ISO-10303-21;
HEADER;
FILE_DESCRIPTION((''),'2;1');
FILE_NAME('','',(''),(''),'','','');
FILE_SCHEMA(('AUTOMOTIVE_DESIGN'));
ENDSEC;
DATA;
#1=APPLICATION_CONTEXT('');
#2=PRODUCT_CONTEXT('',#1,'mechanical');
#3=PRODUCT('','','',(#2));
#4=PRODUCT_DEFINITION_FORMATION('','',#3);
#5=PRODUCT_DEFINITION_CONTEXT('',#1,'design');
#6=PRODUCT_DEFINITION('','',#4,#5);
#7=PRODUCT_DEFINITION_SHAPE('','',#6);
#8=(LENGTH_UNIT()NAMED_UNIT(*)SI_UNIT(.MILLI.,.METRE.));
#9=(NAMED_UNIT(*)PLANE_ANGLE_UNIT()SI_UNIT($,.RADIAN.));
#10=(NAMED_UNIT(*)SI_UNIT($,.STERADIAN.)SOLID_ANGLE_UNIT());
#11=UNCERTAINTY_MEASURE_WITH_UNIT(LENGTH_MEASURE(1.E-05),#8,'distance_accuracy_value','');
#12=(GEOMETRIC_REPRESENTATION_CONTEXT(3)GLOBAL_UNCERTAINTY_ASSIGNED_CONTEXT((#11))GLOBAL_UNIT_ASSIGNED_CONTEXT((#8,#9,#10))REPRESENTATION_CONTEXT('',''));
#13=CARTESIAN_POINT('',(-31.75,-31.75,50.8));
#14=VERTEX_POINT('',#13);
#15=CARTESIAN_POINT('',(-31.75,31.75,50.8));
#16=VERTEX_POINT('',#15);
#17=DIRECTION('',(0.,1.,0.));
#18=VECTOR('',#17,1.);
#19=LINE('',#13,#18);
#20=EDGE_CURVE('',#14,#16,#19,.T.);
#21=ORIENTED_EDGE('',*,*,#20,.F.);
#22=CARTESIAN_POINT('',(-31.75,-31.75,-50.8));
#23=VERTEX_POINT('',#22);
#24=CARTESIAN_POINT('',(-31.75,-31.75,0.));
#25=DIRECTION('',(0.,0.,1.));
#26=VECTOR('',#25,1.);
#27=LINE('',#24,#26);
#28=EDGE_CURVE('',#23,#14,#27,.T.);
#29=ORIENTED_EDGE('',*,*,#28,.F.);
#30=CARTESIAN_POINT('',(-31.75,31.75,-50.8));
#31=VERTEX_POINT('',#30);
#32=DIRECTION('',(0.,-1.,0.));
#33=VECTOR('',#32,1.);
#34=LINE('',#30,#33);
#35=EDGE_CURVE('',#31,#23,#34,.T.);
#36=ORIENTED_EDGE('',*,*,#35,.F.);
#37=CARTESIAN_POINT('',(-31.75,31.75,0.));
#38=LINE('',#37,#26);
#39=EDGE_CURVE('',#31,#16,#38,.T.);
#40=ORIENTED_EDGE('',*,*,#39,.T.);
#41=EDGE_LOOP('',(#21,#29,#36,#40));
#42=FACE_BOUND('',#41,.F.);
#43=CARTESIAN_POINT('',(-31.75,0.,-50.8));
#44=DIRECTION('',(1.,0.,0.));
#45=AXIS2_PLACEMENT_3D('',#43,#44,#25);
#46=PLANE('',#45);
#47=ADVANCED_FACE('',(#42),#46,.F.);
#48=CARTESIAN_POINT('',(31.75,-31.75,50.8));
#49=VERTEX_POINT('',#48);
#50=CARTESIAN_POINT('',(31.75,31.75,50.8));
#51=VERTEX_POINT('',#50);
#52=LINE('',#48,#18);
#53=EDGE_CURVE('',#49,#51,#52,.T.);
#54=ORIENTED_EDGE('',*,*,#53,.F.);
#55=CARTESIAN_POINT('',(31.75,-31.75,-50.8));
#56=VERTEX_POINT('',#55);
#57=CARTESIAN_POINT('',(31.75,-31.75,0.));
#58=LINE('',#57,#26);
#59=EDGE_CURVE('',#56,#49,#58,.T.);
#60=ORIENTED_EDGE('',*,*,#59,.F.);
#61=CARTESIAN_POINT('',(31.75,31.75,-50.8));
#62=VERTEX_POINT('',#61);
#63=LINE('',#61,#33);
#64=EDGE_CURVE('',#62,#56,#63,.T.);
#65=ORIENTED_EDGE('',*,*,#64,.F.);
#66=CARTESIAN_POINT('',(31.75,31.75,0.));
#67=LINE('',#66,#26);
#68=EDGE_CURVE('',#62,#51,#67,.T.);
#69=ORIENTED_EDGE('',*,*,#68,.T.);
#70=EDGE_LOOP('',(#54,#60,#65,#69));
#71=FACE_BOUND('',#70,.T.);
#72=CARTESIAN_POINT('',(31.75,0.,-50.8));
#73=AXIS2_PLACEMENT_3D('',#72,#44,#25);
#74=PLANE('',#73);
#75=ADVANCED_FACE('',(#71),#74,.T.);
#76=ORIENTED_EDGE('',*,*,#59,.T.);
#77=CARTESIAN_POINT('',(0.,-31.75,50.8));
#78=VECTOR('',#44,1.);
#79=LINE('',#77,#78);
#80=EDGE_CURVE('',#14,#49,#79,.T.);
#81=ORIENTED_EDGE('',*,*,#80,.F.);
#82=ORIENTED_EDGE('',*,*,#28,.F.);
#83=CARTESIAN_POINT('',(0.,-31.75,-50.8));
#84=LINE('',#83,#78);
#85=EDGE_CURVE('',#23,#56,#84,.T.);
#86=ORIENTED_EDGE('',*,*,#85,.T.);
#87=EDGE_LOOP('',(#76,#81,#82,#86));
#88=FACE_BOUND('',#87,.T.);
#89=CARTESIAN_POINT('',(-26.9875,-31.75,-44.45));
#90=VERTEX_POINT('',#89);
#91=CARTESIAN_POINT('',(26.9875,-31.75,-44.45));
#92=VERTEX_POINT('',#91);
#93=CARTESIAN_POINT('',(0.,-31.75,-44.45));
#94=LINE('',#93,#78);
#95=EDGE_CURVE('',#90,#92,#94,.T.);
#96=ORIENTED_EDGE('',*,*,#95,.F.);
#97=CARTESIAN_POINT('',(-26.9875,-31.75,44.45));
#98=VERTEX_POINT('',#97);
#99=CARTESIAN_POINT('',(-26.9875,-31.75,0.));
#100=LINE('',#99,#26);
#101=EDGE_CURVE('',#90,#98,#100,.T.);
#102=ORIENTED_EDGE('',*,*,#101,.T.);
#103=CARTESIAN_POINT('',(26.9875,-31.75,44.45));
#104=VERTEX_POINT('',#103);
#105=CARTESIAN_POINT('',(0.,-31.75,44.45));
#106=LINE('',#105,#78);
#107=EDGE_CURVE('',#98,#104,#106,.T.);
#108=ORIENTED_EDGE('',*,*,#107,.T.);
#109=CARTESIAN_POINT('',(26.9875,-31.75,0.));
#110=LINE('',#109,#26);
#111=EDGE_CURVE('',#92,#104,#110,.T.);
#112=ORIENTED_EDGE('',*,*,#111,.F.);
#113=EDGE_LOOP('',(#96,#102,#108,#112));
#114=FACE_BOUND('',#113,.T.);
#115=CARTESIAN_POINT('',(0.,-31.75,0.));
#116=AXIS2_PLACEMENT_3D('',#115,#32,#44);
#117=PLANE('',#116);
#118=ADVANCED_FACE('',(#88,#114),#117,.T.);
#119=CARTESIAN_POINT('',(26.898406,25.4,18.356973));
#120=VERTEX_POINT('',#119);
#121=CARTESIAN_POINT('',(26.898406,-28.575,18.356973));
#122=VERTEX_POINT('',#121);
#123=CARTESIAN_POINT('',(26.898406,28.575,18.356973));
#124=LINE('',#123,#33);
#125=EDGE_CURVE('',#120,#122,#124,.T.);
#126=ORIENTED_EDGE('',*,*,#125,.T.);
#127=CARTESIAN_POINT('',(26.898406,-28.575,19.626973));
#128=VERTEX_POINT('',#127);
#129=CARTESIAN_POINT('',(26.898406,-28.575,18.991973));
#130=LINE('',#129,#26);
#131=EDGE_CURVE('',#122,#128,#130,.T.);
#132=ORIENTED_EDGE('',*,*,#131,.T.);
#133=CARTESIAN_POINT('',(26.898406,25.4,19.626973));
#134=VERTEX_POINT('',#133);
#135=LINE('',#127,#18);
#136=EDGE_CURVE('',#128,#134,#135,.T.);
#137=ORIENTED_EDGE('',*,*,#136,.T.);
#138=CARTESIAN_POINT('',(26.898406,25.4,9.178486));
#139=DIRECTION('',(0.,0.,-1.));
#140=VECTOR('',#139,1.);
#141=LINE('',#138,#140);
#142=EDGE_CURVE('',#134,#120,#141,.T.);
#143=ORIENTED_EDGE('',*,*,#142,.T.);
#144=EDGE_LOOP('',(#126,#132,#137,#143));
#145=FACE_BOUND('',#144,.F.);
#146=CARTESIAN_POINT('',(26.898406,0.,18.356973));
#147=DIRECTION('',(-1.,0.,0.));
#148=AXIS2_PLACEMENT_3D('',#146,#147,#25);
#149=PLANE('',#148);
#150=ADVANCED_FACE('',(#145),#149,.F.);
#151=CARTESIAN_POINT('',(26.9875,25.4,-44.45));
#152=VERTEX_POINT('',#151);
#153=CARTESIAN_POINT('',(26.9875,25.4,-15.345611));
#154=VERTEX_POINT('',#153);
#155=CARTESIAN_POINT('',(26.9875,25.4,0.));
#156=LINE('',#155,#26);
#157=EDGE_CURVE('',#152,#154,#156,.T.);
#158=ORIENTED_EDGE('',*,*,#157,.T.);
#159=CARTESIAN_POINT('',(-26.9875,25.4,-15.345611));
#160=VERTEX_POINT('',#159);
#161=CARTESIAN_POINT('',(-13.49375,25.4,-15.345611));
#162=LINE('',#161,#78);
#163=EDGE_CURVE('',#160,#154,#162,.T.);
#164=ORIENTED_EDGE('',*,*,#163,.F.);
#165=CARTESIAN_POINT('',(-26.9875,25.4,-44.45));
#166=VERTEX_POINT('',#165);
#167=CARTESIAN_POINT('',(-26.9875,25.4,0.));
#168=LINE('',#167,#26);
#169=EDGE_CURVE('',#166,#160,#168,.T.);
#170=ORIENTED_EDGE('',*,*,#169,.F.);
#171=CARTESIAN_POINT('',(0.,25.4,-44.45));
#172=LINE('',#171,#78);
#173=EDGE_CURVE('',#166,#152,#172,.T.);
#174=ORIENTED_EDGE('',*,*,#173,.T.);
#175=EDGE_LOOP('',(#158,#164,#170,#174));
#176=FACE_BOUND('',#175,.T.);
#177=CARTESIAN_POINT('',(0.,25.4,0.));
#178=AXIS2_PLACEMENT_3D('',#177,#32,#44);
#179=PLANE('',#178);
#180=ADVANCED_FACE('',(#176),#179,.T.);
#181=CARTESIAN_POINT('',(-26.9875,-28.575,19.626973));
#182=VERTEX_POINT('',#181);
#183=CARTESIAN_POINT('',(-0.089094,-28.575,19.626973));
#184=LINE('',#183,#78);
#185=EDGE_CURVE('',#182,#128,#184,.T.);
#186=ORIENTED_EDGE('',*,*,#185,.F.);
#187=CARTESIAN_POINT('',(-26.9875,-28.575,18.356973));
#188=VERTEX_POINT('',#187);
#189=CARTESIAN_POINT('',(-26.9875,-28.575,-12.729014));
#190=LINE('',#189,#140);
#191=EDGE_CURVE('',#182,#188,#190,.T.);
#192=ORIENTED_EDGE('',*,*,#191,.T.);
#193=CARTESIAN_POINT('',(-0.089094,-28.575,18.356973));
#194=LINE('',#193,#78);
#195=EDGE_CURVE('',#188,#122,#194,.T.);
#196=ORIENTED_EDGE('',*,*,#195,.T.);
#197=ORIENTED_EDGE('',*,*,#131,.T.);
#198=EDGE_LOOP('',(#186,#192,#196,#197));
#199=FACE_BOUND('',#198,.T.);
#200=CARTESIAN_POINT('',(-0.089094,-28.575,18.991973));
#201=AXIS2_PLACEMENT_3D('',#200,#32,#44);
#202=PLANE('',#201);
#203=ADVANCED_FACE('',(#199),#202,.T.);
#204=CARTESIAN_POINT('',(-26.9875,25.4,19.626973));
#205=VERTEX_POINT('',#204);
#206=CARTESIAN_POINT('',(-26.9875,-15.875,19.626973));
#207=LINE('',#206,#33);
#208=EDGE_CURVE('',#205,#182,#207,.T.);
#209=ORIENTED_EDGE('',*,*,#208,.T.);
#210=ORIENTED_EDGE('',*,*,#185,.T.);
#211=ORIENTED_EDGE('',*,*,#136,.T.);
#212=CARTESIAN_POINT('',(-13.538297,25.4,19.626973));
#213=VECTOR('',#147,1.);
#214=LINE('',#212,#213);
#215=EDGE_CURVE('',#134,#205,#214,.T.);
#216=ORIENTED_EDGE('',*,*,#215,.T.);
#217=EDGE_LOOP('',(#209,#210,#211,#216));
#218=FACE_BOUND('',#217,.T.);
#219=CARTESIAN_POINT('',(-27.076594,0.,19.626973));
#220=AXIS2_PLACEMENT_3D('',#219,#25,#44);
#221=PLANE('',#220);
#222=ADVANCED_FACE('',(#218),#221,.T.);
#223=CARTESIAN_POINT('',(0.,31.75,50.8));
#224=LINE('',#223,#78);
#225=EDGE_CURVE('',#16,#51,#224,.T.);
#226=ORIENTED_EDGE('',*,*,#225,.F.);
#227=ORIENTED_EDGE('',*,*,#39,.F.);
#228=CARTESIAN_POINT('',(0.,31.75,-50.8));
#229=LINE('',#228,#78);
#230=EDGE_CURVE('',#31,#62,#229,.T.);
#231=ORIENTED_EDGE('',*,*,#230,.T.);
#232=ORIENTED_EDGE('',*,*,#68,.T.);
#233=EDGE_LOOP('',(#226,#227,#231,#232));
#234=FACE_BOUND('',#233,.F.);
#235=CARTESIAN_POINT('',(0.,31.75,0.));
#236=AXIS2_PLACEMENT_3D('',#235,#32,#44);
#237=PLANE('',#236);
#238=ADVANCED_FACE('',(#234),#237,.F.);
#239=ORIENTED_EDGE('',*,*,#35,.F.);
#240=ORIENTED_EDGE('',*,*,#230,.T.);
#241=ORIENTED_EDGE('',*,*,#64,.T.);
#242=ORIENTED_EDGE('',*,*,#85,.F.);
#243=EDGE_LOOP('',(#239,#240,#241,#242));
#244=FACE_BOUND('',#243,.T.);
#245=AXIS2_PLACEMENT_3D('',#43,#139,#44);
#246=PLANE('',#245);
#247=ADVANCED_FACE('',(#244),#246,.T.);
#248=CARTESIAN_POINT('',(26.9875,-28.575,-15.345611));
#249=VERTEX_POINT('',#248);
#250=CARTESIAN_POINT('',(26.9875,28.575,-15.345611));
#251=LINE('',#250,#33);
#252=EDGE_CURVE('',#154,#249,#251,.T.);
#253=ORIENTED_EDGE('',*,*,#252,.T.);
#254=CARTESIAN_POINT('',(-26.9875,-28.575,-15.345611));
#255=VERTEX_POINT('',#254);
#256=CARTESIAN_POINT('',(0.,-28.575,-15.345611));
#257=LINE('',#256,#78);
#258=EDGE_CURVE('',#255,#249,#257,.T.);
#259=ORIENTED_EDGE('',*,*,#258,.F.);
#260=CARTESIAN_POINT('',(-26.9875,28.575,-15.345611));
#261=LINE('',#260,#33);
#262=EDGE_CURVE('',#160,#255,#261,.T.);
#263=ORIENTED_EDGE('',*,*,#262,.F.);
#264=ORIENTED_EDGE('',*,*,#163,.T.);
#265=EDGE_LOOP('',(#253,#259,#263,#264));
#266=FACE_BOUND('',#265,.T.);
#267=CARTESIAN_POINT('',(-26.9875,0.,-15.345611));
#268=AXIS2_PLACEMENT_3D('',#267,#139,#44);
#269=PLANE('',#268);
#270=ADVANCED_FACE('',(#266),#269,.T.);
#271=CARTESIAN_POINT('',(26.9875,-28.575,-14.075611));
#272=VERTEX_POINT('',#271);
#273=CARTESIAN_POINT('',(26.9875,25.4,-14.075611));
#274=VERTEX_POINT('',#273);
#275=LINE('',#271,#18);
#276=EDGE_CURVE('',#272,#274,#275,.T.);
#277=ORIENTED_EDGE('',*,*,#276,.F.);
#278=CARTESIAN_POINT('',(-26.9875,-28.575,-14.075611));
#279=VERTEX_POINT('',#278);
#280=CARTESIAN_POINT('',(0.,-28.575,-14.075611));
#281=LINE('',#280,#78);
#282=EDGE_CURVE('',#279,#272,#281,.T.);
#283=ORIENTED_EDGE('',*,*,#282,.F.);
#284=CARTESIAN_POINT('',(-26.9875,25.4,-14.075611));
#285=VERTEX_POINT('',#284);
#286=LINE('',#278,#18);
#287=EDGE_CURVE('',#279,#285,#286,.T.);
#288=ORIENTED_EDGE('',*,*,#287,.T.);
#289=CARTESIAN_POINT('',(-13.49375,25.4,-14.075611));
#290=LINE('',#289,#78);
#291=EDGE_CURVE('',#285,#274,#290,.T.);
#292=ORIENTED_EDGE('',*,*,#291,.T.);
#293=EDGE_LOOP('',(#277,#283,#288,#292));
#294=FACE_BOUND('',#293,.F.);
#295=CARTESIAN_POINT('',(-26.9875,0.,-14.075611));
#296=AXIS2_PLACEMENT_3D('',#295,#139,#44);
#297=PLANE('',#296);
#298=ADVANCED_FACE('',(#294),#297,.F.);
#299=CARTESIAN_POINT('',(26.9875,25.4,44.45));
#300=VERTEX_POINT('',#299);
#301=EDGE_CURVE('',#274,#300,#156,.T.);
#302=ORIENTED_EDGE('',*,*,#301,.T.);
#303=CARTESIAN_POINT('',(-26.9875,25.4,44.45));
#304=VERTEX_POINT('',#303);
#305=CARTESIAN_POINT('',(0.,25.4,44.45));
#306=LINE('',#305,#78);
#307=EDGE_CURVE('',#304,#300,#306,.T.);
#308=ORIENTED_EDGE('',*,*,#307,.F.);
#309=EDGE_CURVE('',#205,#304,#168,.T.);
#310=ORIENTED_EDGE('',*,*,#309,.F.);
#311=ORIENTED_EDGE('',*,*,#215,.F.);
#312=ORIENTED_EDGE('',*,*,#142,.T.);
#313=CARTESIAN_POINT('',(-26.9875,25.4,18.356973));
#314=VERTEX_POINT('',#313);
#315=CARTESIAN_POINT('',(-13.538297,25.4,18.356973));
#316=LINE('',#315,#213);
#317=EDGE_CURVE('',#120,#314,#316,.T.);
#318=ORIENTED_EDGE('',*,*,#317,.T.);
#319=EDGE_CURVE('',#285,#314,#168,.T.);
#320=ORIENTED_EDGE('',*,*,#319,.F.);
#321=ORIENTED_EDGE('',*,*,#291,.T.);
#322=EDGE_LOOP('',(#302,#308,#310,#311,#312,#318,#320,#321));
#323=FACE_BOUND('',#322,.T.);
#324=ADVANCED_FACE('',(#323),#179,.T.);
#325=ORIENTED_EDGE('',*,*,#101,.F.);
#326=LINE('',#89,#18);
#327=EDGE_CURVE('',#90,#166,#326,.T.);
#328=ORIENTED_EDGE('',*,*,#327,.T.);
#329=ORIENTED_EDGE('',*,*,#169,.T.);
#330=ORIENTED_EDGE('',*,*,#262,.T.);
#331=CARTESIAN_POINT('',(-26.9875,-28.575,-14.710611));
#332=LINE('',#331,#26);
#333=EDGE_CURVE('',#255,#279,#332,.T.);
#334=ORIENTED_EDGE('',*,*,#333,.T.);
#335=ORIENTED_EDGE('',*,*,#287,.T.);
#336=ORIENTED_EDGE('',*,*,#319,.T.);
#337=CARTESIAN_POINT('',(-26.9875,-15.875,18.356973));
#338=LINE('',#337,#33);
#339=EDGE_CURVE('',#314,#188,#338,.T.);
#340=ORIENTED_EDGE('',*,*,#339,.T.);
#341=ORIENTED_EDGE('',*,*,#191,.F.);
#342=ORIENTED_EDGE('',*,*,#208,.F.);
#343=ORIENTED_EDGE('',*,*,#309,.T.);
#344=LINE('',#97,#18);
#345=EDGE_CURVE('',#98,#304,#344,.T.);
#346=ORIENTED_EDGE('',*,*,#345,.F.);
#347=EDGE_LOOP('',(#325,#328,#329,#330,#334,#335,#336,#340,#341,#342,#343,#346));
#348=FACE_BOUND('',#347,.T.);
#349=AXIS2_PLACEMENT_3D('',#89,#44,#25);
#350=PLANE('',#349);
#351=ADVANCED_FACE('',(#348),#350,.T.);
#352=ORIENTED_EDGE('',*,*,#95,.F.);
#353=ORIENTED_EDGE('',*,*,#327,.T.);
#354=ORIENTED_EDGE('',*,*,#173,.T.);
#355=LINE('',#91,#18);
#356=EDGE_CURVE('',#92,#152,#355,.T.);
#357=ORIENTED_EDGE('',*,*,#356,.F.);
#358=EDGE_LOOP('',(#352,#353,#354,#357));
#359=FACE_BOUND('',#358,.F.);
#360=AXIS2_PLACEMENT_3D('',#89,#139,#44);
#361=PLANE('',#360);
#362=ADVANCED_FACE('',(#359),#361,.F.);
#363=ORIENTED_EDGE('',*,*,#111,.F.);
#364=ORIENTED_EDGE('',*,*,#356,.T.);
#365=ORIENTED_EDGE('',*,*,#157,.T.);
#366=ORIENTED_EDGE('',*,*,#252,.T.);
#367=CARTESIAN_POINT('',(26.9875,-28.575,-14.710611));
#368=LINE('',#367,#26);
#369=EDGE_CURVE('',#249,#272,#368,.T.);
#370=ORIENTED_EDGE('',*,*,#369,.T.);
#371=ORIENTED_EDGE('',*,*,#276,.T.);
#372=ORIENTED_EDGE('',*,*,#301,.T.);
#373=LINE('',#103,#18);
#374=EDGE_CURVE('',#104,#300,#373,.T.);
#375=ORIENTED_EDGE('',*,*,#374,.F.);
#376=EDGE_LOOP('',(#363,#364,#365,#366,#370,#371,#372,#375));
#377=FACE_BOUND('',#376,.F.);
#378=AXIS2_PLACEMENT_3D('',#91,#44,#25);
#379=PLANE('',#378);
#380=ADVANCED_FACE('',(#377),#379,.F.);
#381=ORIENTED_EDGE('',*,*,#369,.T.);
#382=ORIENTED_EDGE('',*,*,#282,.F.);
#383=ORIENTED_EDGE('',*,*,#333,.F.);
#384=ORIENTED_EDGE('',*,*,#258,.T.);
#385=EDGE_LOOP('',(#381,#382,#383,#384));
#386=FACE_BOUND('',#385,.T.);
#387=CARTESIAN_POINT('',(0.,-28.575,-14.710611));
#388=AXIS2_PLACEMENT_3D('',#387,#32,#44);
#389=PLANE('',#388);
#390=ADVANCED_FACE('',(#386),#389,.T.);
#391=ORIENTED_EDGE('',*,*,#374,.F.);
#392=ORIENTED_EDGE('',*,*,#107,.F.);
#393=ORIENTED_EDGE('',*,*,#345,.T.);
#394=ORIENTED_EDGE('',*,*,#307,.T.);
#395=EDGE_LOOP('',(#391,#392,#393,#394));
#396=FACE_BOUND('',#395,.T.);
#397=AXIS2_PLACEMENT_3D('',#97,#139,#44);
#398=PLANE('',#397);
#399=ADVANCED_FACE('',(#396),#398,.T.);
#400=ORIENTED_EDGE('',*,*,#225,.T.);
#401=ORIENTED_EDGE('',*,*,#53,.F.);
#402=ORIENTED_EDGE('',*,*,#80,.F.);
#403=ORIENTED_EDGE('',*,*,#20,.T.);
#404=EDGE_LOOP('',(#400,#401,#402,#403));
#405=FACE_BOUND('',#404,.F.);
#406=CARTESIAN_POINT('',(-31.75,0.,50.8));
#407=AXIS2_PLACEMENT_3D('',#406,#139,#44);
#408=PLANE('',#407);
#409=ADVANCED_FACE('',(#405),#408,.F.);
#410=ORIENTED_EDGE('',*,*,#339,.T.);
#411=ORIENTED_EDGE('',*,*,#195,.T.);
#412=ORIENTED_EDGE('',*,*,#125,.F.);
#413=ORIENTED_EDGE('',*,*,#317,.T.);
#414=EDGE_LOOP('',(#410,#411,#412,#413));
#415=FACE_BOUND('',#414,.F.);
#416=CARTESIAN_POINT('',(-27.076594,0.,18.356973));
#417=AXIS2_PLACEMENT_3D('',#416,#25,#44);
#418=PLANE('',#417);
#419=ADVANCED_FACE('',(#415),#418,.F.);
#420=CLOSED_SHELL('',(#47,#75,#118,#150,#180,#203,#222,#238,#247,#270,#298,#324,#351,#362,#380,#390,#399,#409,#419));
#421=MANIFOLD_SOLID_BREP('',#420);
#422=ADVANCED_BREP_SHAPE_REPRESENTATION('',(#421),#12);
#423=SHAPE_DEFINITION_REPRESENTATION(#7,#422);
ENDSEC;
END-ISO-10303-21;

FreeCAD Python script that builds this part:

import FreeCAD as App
import Part
import Sketcher

V = App.Vector
Q = App.Units.Quantity


def add_polygon(sketch, points):
    """Adds a closed chain of lines whose ends are joined by coincident constraints."""
    first, n = sketch.GeometryCount, len(points)
    for a, b in zip(points, points[1:] + points[:1]):
        sketch.addGeometry(Part.LineSegment(App.Vector(*a, 0), App.Vector(*b, 0)), False)
    for i in range(n):
        sketch.addConstraint(Sketcher.Constraint("Coincident", first + i, 2, first + (i + 1) % n, 1))

doc = App.newDocument("Part")
body = doc.addObject("PartDesign::Body", "Body")

sketch1 = body.newObject("Sketcher::SketchObject", "Sketch")
sketch1.AttachmentSupport = (doc.getObject("XZ_Plane"), [""])
sketch1.MapMode = "FlatFace"
add_polygon(sketch1, [(-32, 51), (-32, -51), (32, -51), (32, 51)])
sketch1.addConstraint(Sketcher.Constraint("Vertical", 0))
sketch1.addConstraint(Sketcher.Constraint("Horizontal", 1))
sketch1.addConstraint(Sketcher.Constraint("Vertical", 2))
sketch1.addConstraint(Sketcher.Constraint("Horizontal", 3))
sketch1.addConstraint(Sketcher.Constraint("Symmetric", 0, 2, 2, 2, -1, 1))
sketch1.addConstraint(Sketcher.Constraint("DistanceY", 0, 2, 0, 1, Q("4 in")))
sketch1.addConstraint(Sketcher.Constraint("DistanceX", 1, 1, 1, 2, Q("2.5 in")))
pad1 = body.newObject("PartDesign::Pad", "Pad")
pad1.Profile = sketch1
pad1.Length = Q("2.5 in")
pad1.Midplane = True

sketch2 = body.newObject("Sketcher::SketchObject", "Sketch001")
sketch2.AttachmentSupport = (doc.getObject("XZ_Plane"), [""])
sketch2.MapMode = "FlatFace"
sketch2.AttachmentOffset = App.Placement(V(0, 0, 1.25 * 25.4), App.Rotation())
add_polygon(sketch2, [(-27, 44), (-27, -44), (27, -44), (27, 44)])
sketch2.addConstraint(Sketcher.Constraint("Vertical", 0))
sketch2.addConstraint(Sketcher.Constraint("Horizontal", 1))
sketch2.addConstraint(Sketcher.Constraint("Vertical", 2))
sketch2.addConstraint(Sketcher.Constraint("Horizontal", 3))
sketch2.addConstraint(Sketcher.Constraint("Symmetric", 0, 2, 2, 2, -1, 1))
sketch2.addConstraint(Sketcher.Constraint("DistanceY", 0, 2, 0, 1, Q("3.5 in")))
sketch2.addConstraint(Sketcher.Constraint("DistanceX", 1, 1, 1, 2, Q("2.125 in")))
pocket1 = body.newObject("PartDesign::Pocket", "Pocket")
pocket1.Profile = sketch2
pocket1.Length = Q("2.25 in")

sketch3 = body.newObject("Sketcher::SketchObject", "Sketch002")
sketch3.AttachmentSupport = (doc.getObject("XZ_Plane"), [""])
sketch3.MapMode = "FlatFace"
add_polygon(sketch3, [(-27.1, 19.6), (-27.1, 18.4), (26.9, 18.4), (26.9, 19.6)])
add_polygon(sketch3, [(-27, -14.1), (-27, -15.3), (27, -15.3), (27, -14.1)])
sketch3.addConstraint(Sketcher.Constraint("Vertical", 0))
sketch3.addConstraint(Sketcher.Constraint("Horizontal", 1))
sketch3.addConstraint(Sketcher.Constraint("Vertical", 2))
sketch3.addConstraint(Sketcher.Constraint("Horizontal", 3))
sketch3.addConstraint(Sketcher.Constraint("Vertical", 4))
sketch3.addConstraint(Sketcher.Constraint("Horizontal", 5))
sketch3.addConstraint(Sketcher.Constraint("Vertical", 6))
sketch3.addConstraint(Sketcher.Constraint("Horizontal", 7))
sketch3.addConstraint(Sketcher.Constraint("Equal", 3, 5))
sketch3.addConstraint(Sketcher.Constraint("Equal", 2, 4))
sketch3.addConstraint(Sketcher.Constraint("DistanceY", 0, 2, 0, 1, Q("0.05 in")))
sketch3.addConstraint(Sketcher.Constraint("DistanceX", 1, 1, 1, 2, Q("2.125 in")))
sketch3.addConstraint(Sketcher.Constraint("DistanceX", 4, 2, -1, 1, Q("1.0625 in")))
sketch3.addConstraint(Sketcher.Constraint("DistanceY", 4, 2, -1, 1, Q("15.345611 mm")))
sketch3.addConstraint(Sketcher.Constraint("DistanceX", 0, 2, -1, 1, Q("27.076594 mm")))
sketch3.addConstraint(Sketcher.Constraint("DistanceY", -1, 1, 0, 2, Q("18.356973 mm")))
pad2 = body.newObject("PartDesign::Pad", "Pad001")
pad2.Profile = sketch3
pad2.Length = Q("2.25 in")
pad2.Midplane = True

doc.recompute()
